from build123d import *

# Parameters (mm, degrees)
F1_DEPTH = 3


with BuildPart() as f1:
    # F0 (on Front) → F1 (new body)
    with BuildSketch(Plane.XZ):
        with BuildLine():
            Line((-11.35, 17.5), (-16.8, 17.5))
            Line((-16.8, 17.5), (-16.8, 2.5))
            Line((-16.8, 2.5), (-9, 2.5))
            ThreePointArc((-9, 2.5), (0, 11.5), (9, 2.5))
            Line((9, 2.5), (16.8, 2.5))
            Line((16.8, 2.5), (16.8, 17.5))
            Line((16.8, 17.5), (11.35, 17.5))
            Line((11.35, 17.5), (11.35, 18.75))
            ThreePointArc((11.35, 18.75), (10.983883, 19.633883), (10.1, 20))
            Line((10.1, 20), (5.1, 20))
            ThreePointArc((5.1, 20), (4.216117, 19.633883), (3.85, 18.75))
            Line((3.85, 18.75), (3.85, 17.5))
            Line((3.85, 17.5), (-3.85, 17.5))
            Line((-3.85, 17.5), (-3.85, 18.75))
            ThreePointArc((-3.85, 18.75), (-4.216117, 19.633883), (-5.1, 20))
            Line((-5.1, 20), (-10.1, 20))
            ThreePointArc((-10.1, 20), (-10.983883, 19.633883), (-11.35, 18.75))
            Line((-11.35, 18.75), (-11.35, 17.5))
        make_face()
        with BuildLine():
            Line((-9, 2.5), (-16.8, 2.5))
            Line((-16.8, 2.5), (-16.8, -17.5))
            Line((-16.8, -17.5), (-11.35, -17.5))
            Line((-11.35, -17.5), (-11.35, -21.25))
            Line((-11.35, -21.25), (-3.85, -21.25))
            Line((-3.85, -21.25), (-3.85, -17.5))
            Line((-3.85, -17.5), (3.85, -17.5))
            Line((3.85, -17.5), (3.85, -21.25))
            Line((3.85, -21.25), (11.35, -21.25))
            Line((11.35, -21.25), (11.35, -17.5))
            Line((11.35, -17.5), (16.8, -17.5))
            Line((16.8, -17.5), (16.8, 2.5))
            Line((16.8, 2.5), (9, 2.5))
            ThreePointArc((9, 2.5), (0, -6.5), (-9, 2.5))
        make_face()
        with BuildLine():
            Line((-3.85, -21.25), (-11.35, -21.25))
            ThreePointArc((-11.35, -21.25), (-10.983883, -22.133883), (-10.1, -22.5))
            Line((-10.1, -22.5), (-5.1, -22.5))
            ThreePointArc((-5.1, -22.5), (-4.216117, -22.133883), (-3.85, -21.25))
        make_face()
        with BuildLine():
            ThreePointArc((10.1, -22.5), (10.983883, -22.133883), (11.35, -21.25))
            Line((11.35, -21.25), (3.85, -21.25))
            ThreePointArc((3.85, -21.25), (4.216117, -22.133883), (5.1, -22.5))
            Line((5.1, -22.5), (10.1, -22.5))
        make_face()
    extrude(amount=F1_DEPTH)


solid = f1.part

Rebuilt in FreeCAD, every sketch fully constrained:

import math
import FreeCAD as App
import Part
import Sketcher

V = App.Vector

doc = App.newDocument("Part")
body = doc.addObject("PartDesign::Body", "Body")

sketch1 = body.newObject("Sketcher::SketchObject", "Sketch")
sketch1.AttachmentSupport = (doc.getObject("XZ_Plane"), [""])
sketch1.MapMode = "FlatFace"
sketch1.addGeometry([
    Part.LineSegment(V(-11.3, 17.5, 0), V(-16.8, 17.5, 0)),
    Part.LineSegment(V(-16.8, 17.5, 0), V(-16.8, -17.5, 0)),
    Part.LineSegment(V(-16.8, -17.5, 0), V(-11.3, -17.5, 0)),
    Part.LineSegment(V(-11.3, -17.5, 0), V(-11.3, -21.2, 0)),
    Part.ArcOfCircle(Part.Circle(V(-10.1, -21.2, 0), V(0, 0, 1), 1.3), math.radians(-180), math.radians(-90)),
    Part.LineSegment(V(-10.1, -22.5, 0), V(-5.1, -22.5, 0)),
    Part.ArcOfCircle(Part.Circle(V(-5.1, -21.2, 0), V(0, 0, 1), 1.3), math.radians(-90), math.radians(0)),
    Part.LineSegment(V(-3.9, -21.2, 0), V(-3.9, -17.5, 0)),
    Part.LineSegment(V(-3.9, -17.5, 0), V(3.9, -17.5, 0)),
    Part.LineSegment(V(3.9, -17.5, 0), V(3.9, -21.2, 0)),
    Part.ArcOfCircle(Part.Circle(V(5.1, -21.2, 0), V(0, 0, 1), 1.3), math.radians(-180), math.radians(-90)),
    Part.LineSegment(V(5.1, -22.5, 0), V(10.1, -22.5, 0)),
    Part.ArcOfCircle(Part.Circle(V(10.1, -21.2, 0), V(0, 0, 1), 1.3), math.radians(-90), math.radians(0)),
    Part.LineSegment(V(11.3, -21.2, 0), V(11.3, -17.5, 0)),
    Part.LineSegment(V(11.3, -17.5, 0), V(16.8, -17.5, 0)),
    Part.LineSegment(V(16.8, -17.5, 0), V(16.8, 17.5, 0)),
    Part.LineSegment(V(16.8, 17.5, 0), V(11.3, 17.5, 0)),
    Part.LineSegment(V(11.3, 17.5, 0), V(11.3, 18.8, 0)),
    Part.ArcOfCircle(Part.Circle(V(10.1, 18.7, 0), V(0, 0, 1), 1.3), math.radians(0), math.radians(90)),
    Part.LineSegment(V(10.1, 20, 0), V(5.1, 20, 0)),
    Part.ArcOfCircle(Part.Circle(V(5.1, 18.7, 0), V(0, 0, 1), 1.3), math.radians(90), math.radians(180)),
    Part.LineSegment(V(3.9, 18.8, 0), V(3.9, 17.5, 0)),
    Part.LineSegment(V(3.9, 17.5, 0), V(-3.9, 17.5, 0)),
    Part.LineSegment(V(-3.9, 17.5, 0), V(-3.9, 18.8, 0)),
    Part.ArcOfCircle(Part.Circle(V(-5.1, 18.7, 0), V(0, 0, 1), 1.3), math.radians(0), math.radians(90)),
    Part.LineSegment(V(-5.1, 20, 0), V(-10.1, 20, 0)),
    Part.ArcOfCircle(Part.Circle(V(-10.1, 18.7, 0), V(0, 0, 1), 1.3), math.radians(90), math.radians(180)),
    Part.LineSegment(V(-11.3, 18.8, 0), V(-11.3, 17.5, 0)),
    Part.Circle(V(0, 2.5, 0), V(0, 0, 1), 9),
], False)
sketch1.addConstraint([
    Sketcher.Constraint("Coincident", 0, 2, 1, 1),
    Sketcher.Constraint("Coincident", 1, 2, 2, 1),
    Sketcher.Constraint("Coincident", 2, 2, 3, 1),
    Sketcher.Constraint("Tangent", 3, 2, 4, 1),
    Sketcher.Constraint("Tangent", 4, 2, 5, 1),
    Sketcher.Constraint("Tangent", 5, 2, 6, 1),
    Sketcher.Constraint("Tangent", 6, 2, 7, 1),
    Sketcher.Constraint("Coincident", 7, 2, 8, 1),
    Sketcher.Constraint("Coincident", 8, 2, 9, 1),
    Sketcher.Constraint("Tangent", 9, 2, 10, 1),
    Sketcher.Constraint("Tangent", 10, 2, 11, 1),
    Sketcher.Constraint("Tangent", 11, 2, 12, 1),
    Sketcher.Constraint("Tangent", 12, 2, 13, 1),
    Sketcher.Constraint("Coincident", 13, 2, 14, 1),
    Sketcher.Constraint("Coincident", 14, 2, 15, 1),
    Sketcher.Constraint("Coincident", 15, 2, 16, 1),
    Sketcher.Constraint("Coincident", 16, 2, 17, 1),
    Sketcher.Constraint("Tangent", 17, 2, 18, 1),
    Sketcher.Constraint("Tangent", 18, 2, 19, 1),
    Sketcher.Constraint("Tangent", 19, 2, 20, 1),
    Sketcher.Constraint("Tangent", 20, 2, 21, 1),
    Sketcher.Constraint("Coincident", 21, 2, 22, 1),
    Sketcher.Constraint("Coincident", 22, 2, 23, 1),
    Sketcher.Constraint("Tangent", 23, 2, 24, 1),
    Sketcher.Constraint("Tangent", 24, 2, 25, 1),
    Sketcher.Constraint("Tangent", 25, 2, 26, 1),
    Sketcher.Constraint("Tangent", 26, 2, 27, 1),
    Sketcher.Constraint("Coincident", 27, 2, 0, 1),
    Sketcher.Constraint("Horizontal", 0),
    Sketcher.Constraint("Vertical", 1),
    Sketcher.Constraint("Horizontal", 2),
    Sketcher.Constraint("Vertical", 3),
    Sketcher.Constraint("Horizontal", 5),
    Sketcher.Constraint("Vertical", 7),
    Sketcher.Constraint("Horizontal", 8),
    Sketcher.Constraint("Vertical", 9),
    Sketcher.Constraint("Horizontal", 11),
    Sketcher.Constraint("Vertical", 13),
    Sketcher.Constraint("Horizontal", 14),
    Sketcher.Constraint("Vertical", 15),
    Sketcher.Constraint("Horizontal", 16),
    Sketcher.Constraint("Vertical", 17),
    Sketcher.Constraint("Horizontal", 19),
    Sketcher.Constraint("Vertical", 21),
    Sketcher.Constraint("Horizontal", 22),
    Sketcher.Constraint("Vertical", 23),
    Sketcher.Constraint("Horizontal", 25),
    Sketcher.Constraint("Vertical", 27),
    Sketcher.Constraint("Equal", 4, 6),
    Sketcher.Constraint("Equal", 6, 10),
    Sketcher.Constraint("Equal", 10, 12),
    Sketcher.Constraint("Equal", 12, 18),
    Sketcher.Constraint("Equal", 18, 20),
    Sketcher.Constraint("Equal", 20, 24),
    Sketcher.Constraint("Equal", 24, 26),
    Sketcher.Constraint("Symmetric", 0, 2, 14, 2, -1, 1),
    Sketcher.Constraint("Symmetric", 2, 2, 16, 2, -1, 1),
    Sketcher.Constraint("Symmetric", 7, 2, 21, 2, -1, 1),
    Sketcher.Constraint("Symmetric", 6, 3, 10, 3, -2),
    Sketcher.Constraint("Symmetric", 20, 3, 24, 3, -2),
    Sketcher.Constraint("Symmetric", 2, 2, 13, 2, -2),
    Sketcher.Constraint("PointOnObject", 28, 3, -2),
    Sketcher.Constraint("Horizontal", 2, 2, 7, 2),
    Sketcher.Constraint("Vertical", 4, 3, 26, 3),
    Sketcher.Constraint("Diameter", 28, 18.0),
    Sketcher.Constraint("DistanceX", 5, 1, 5, 2, 5.0),
    Sketcher.Constraint("DistanceY", 1, 2, 1, 1, 35.0),
    Sketcher.Constraint("Radius", 4, 1.250002),
    Sketcher.Constraint("DistanceX", 8, 1, 8, 2, 7.7),
    Sketcher.Constraint("DistanceY", -1, 1, 18, 2, 20.0),
    Sketcher.Constraint("DistanceY", 28, 3, 0, 2, 15.0),
    Sketcher.Constraint("DistanceY", 4, 2, 2, 2, 5.0),
    Sketcher.Constraint("DistanceX", 0, 2, 0, 1, 5.45),
])
pad1 = body.newObject("PartDesign::Pad", "Pad")
pad1.Profile = sketch1
pad1.Length = 3

doc.recompute()
